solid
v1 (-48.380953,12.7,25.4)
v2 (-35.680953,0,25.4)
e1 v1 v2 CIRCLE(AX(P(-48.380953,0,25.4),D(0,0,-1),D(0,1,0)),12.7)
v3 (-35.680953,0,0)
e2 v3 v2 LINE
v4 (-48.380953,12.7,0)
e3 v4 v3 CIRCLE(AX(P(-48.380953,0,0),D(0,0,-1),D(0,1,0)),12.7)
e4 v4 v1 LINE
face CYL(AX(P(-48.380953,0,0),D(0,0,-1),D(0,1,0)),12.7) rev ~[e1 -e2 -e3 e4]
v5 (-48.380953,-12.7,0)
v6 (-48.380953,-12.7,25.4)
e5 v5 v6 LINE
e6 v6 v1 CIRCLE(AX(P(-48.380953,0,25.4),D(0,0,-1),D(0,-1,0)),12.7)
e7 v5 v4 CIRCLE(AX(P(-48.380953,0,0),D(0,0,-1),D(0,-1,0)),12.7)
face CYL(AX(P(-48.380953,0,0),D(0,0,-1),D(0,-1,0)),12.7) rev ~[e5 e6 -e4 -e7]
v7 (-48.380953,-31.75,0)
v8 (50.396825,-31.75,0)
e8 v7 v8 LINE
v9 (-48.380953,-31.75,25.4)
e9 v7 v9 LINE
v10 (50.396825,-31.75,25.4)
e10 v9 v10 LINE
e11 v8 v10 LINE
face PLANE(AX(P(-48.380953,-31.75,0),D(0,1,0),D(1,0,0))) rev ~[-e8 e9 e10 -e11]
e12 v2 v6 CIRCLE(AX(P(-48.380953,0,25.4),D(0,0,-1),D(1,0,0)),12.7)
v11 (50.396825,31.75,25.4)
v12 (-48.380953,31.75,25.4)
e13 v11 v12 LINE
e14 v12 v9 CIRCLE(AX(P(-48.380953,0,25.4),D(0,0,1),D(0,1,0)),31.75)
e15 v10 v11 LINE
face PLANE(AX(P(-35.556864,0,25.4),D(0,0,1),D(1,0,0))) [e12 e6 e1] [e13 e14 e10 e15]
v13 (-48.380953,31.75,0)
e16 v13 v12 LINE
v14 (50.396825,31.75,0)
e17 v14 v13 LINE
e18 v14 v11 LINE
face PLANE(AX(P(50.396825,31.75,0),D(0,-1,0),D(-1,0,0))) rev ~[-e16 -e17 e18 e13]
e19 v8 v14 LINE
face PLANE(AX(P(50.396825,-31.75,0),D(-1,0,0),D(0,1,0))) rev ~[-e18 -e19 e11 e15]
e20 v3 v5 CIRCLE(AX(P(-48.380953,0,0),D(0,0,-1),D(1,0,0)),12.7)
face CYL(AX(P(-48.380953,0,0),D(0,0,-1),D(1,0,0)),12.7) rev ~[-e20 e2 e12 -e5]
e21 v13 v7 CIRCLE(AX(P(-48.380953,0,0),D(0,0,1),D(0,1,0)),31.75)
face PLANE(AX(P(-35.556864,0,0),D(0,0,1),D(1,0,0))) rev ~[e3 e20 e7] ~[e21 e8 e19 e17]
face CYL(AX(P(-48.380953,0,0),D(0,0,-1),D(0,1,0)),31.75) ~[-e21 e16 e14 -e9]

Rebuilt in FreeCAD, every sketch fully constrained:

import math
import FreeCAD as App
import Part
import Sketcher
from FreeCAD import Vector
Q = App.Units.Quantity

doc = App.newDocument("Part")
body = doc.addObject("PartDesign::Body", "Body")

# Sketch on XY plane
sketch1 = doc.addObject("Sketcher::SketchObject", "Sketch")
body.addObject(sketch1)
sketch1.AttachmentSupport = (doc.XY_Plane, [""])
sketch1.MapMode = "FlatFace"
sketch1.addGeometry([
    Part.LineSegment(Vector(-48, -32, 0), Vector(50, -32, 0)),  # 0
    Part.LineSegment(Vector(50, -32, 0), Vector(50, 32, 0)),  # 1
    Part.LineSegment(Vector(50, 32, 0), Vector(-48, 32, 0)),  # 2
    Part.ArcOfCircle(Part.Circle(Vector(-48, 0, 0), Vector(0, 0, 1), 32), math.radians(90), math.radians(270)),  # 3
    Part.ArcOfCircle(Part.Circle(Vector(-48, 0, 0), Vector(0, 0, 1), 13), math.radians(0), math.radians(90)),  # 4
    Part.ArcOfCircle(Part.Circle(Vector(-48, 0, 0), Vector(0, 0, 1), 13), math.radians(-90), math.radians(0)),  # 5
    Part.ArcOfCircle(Part.Circle(Vector(-48, 0, 0), Vector(0, 0, 1), 13), math.radians(90), math.radians(270)),  # 6
], False)
sketch1.addConstraint([
    Sketcher.Constraint("Coincident", 0, 2, 1, 1),
    Sketcher.Constraint("Coincident", 1, 2, 2, 1),
    Sketcher.Constraint("Tangent", 2, 2, 3, 1),
    Sketcher.Constraint("Tangent", 3, 2, 0, 1),
    Sketcher.Constraint("Tangent", 4, 1, 5, 2),
    Sketcher.Constraint("Tangent", 5, 1, 6, 2),
    Sketcher.Constraint("Tangent", 6, 1, 4, 2),
    Sketcher.Constraint("Horizontal", 0),
    Sketcher.Constraint("Vertical", 1),
    Sketcher.Constraint("Horizontal", 2),
    Sketcher.Constraint("Coincident", 4, 3, 3, 3),
    Sketcher.Constraint("Symmetric", 5, 1, 6, 1, -1),
    Sketcher.Constraint("PointOnObject", 4, 1, -1),
    Sketcher.Constraint("Vertical", 3, 2, 5, 1),
    Sketcher.Constraint("Radius", 4, Q("0.5 in")),
    Sketcher.Constraint("Radius", 3, Q("1.25 in")),
    Sketcher.Constraint("DistanceX", 0, 1, 0, 2, 98.777777),
    Sketcher.Constraint("DistanceX", 3, 3, -1, 1, 48.380953),
])
pad1 = doc.addObject("PartDesign::Pad", "Pad")
body.addObject(pad1)
pad1.Profile = sketch1
pad1.Length = Q("1 in")

doc.recompute()
